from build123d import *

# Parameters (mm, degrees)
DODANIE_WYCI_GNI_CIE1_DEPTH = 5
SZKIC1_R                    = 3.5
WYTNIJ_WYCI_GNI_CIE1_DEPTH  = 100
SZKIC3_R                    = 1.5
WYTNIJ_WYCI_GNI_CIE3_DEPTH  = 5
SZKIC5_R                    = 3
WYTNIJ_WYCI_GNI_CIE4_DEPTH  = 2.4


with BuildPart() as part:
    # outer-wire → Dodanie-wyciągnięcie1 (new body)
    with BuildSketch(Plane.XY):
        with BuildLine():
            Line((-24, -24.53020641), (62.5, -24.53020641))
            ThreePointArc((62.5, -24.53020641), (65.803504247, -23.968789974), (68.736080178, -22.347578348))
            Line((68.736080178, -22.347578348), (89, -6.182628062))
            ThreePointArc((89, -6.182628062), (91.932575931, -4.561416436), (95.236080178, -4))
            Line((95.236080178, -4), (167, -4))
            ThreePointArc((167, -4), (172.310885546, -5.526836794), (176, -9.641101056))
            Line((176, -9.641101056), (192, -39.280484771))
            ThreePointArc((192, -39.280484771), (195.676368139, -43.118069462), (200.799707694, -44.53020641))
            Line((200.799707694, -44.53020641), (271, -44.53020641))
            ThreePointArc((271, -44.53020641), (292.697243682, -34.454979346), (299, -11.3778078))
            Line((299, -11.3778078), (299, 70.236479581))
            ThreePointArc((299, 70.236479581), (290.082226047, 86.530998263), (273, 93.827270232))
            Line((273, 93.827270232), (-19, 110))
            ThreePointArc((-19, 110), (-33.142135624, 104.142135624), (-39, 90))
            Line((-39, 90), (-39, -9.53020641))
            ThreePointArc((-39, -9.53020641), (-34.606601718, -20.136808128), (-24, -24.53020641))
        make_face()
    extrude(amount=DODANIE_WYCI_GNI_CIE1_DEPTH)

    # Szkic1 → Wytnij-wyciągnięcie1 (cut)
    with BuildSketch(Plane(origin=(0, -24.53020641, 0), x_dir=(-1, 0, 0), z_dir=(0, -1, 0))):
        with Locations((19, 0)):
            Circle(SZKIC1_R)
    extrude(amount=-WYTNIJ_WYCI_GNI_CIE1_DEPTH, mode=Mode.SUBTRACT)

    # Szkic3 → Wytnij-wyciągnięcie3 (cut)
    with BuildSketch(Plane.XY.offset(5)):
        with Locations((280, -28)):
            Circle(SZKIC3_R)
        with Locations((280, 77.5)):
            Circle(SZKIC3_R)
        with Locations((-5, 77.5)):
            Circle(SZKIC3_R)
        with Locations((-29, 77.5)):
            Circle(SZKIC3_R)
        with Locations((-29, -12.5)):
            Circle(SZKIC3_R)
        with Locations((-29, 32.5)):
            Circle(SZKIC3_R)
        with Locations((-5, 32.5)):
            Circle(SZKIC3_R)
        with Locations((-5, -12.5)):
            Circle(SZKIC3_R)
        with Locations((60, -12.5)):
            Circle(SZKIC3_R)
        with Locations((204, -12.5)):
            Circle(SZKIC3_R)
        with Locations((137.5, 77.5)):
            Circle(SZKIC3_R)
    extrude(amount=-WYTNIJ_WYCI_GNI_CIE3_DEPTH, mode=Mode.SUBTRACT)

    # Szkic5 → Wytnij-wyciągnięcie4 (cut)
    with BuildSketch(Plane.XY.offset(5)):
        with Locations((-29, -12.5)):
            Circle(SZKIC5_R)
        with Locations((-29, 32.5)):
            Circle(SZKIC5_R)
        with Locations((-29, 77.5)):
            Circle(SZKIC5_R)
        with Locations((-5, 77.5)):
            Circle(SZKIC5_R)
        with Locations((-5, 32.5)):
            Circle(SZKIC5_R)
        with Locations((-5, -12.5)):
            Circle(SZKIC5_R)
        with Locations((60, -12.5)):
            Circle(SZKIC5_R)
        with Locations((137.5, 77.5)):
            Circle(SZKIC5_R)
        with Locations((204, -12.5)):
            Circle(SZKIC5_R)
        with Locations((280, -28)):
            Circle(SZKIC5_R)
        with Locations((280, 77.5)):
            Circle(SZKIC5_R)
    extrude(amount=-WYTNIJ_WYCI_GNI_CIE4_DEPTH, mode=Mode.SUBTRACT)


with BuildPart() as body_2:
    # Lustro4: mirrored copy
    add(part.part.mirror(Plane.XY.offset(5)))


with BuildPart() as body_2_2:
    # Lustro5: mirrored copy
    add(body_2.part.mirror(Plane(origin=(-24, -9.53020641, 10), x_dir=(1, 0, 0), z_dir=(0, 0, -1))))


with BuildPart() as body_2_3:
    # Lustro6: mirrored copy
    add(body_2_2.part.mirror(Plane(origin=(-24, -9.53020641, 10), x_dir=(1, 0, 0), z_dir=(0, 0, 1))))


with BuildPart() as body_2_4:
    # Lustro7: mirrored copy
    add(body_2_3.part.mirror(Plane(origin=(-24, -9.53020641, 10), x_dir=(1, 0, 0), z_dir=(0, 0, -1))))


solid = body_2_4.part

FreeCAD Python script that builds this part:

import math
import FreeCAD as App
import Part
import Sketcher

V = App.Vector
Q = App.Units.Quantity

doc = App.newDocument("Part")
body = doc.addObject("PartDesign::Body", "Body")

# Sketch on XY plane
sketch1 = body.newObject("Sketcher::SketchObject", "Sketch")
sketch1.AttachmentSupport = (doc.getObject("XY_Plane"), [""])
sketch1.MapMode = "FlatFace"
sketch1.addGeometry(Part.LineSegment(V(-24, -24.530206, 0), V(62.5, -24.530206, 0)), False)
sketch1.addGeometry(Part.ArcOfCircle(Part.Circle(V(62.5, -14.530206, 0), V(0, 0, 1), 10), math.radians(-90), math.radians(-51.419908)), False)
sketch1.addGeometry(Part.LineSegment(V(68.73608, -22.347578, 0), V(89, -6.182628, 0)), False)
sketch1.addGeometry(Part.ArcOfCircle(Part.Circle(V(95.23608, -14, 0), V(0, 0, 1), 10), math.radians(90), math.radians(128.580092)), False)
sketch1.addGeometry(Part.LineSegment(V(95.23608, -4, 0), V(167, -4, 0)), False)
sketch1.addGeometry(Part.ArcOfCircle(Part.Circle(V(167, -14, 0), V(0, 0, 1), 10), math.radians(25.841933), math.radians(90)), False)
sketch1.addGeometry(Part.LineSegment(V(176, -9.641101, 0), V(192, -39.280485, 0)), False)
sketch1.addGeometry(Part.ArcOfCircle(Part.Circle(V(200.799708, -34.530206, 0), V(0, 0, 1), 10), math.radians(-151.638838), math.radians(-90)), False)
sketch1.addGeometry(Part.LineSegment(V(200.799708, -44.530206, 0), V(271, -44.530206, 0)), False)
sketch1.addGeometry(Part.ArcOfCircle(Part.Circle(V(271, -16.129825, 0), V(0, 0, 1), 28.400381), math.radians(-90), math.radians(9.632168)), False)
sketch1.addGeometry(Part.LineSegment(V(299, -11.377808, 0), V(299, 70.23648, 0)), False)
sketch1.addGeometry(Part.ArcOfCircle(Part.Circle(V(271, 65.5, 0), V(0, 0, 1), 28.397786), math.radians(9.601261), math.radians(85.961428)), False)
sketch1.addGeometry(Part.LineSegment(V(273, 93.82727, 0), V(-19, 110, 0)), False)
sketch1.addGeometry(Part.ArcOfCircle(Part.Circle(V(-19, 90, 0), V(0, 0, 1), 20), math.radians(90), math.radians(180)), False)
sketch1.addGeometry(Part.LineSegment(V(-39, 90, 0), V(-39, -9.530206, 0)), False)
sketch1.addGeometry(Part.ArcOfCircle(Part.Circle(V(-24, -9.530206, 0), V(0, 0, 1), 15), math.radians(180), math.radians(270)), False)
sketch1.addConstraint(Sketcher.Constraint("Tangent", 0, 2, 1, 1))
sketch1.addConstraint(Sketcher.Constraint("Tangent", 1, 2, 2, 1))
sketch1.addConstraint(Sketcher.Constraint("Tangent", 2, 2, 3, 2))
sketch1.addConstraint(Sketcher.Constraint("Tangent", 3, 1, 4, 1))
sketch1.addConstraint(Sketcher.Constraint("Tangent", 4, 2, 5, 2))
sketch1.addConstraint(Sketcher.Constraint("Coincident", 5, 1, 6, 1))
sketch1.addConstraint(Sketcher.Constraint("Tangent", 6, 2, 7, 1))
sketch1.addConstraint(Sketcher.Constraint("Tangent", 7, 2, 8, 1))
sketch1.addConstraint(Sketcher.Constraint("Tangent", 8, 2, 9, 1))
sketch1.addConstraint(Sketcher.Constraint("Coincident", 9, 2, 10, 1))
sketch1.addConstraint(Sketcher.Constraint("Coincident", 10, 2, 11, 1))
sketch1.addConstraint(Sketcher.Constraint("Coincident", 11, 2, 12, 1))
sketch1.addConstraint(Sketcher.Constraint("Coincident", 12, 2, 13, 1))
sketch1.addConstraint(Sketcher.Constraint("Tangent", 13, 2, 14, 1))
sketch1.addConstraint(Sketcher.Constraint("Tangent", 14, 2, 15, 1))
sketch1.addConstraint(Sketcher.Constraint("Tangent", 15, 2, 0, 1))
sketch1.addConstraint(Sketcher.Constraint("Horizontal", 0))
sketch1.addConstraint(Sketcher.Constraint("Horizontal", 4))
sketch1.addConstraint(Sketcher.Constraint("Horizontal", 8))
sketch1.addConstraint(Sketcher.Constraint("Vertical", 10))
sketch1.addConstraint(Sketcher.Constraint("Vertical", 14))
sketch1.addConstraint(Sketcher.Constraint("Equal", 1, 3))
sketch1.addConstraint(Sketcher.Constraint("Equal", 3, 5))
sketch1.addConstraint(Sketcher.Constraint("Equal", 5, 7))
sketch1.addConstraint(Sketcher.Constraint("Vertical", 9, 3, 11, 3))
sketch1.addConstraint(Sketcher.Constraint("Vertical", 13, 3, 12, 2))
sketch1.addConstraint(Sketcher.Constraint("Radius", 1, Q("10 mm")))
sketch1.addConstraint(Sketcher.Constraint("Radius", 13, Q("20 mm")))
sketch1.addConstraint(Sketcher.Constraint("Radius", 15, Q("15 mm")))
sketch1.addConstraint(Sketcher.Constraint("DistanceX", 0, 1, 0, 2, Q("86.5 mm")))
sketch1.addConstraint(Sketcher.Constraint("DistanceY", 3, 3, -1, 1, Q("14 mm")))
sketch1.addConstraint(Sketcher.Constraint("DistanceX", -1, 1, 5, 3, Q("167 mm")))
sketch1.addConstraint(Sketcher.Constraint("DistanceX", -1, 1, 9, 3, Q("271 mm")))
sketch1.addConstraint(Sketcher.Constraint("DistanceX", 13, 3, -1, 1, Q("19 mm")))
sketch1.addConstraint(Sketcher.Constraint("DistanceY", -1, 1, 13, 3, Q("90 mm")))
sketch1.addConstraint(Sketcher.Constraint("DistanceX", -1, 1, 2, 2, Q("89 mm")))
sketch1.addConstraint(Sketcher.Constraint("DistanceX", -1, 1, 5, 1, Q("176 mm")))
sketch1.addConstraint(Sketcher.Constraint("DistanceX", -1, 1, 6, 2, Q("192 mm")))
sketch1.addConstraint(Sketcher.Constraint("DistanceX", -1, 1, 9, 2, Q("299 mm")))
sketch1.addConstraint(Sketcher.Constraint("DistanceX", -1, 1, 11, 2, Q("273 mm")))
sketch1.addConstraint(Sketcher.Constraint("DistanceY", 7, 3, 1, 3, Q("20 mm")))
sketch1.addConstraint(Sketcher.Constraint("DistanceY", -1, 1, 11, 3, Q("65.5 mm")))
sketch1.addConstraint(Sketcher.Constraint("Radius", 9, Q("28.400381 mm")))
sketch1.addConstraint(Sketcher.Constraint("Radius", 11, Q("28.397786 mm")))
sketch1.addConstraint(Sketcher.Constraint("DistanceX", 4, 1, 4, 2, Q("71.76392 mm")))
pad1 = body.newObject("PartDesign::Pad", "Pad")
pad1.Profile = sketch1
pad1.Length = 5

# Sketch on XZ plane
sketch2 = body.newObject("Sketcher::SketchObject", "Sketch001")
sketch2.AttachmentSupport = (doc.getObject("XZ_Plane"), [""])
sketch2.MapMode = "FlatFace"
sketch2.AttachmentOffset = App.Placement(V(0, 0, 24.530206), App.Rotation())
sketch2.addGeometry(Part.Circle(V(-19, 0, 0), V(0, 0, 1), 3.5), False)
sketch2.addConstraint(Sketcher.Constraint("PointOnObject", 0, 3, -1))
sketch2.addConstraint(Sketcher.Constraint("Diameter", 0, Q("7 mm")))
sketch2.addConstraint(Sketcher.Constraint("DistanceX", 0, 3, -1, 1, Q("19 mm")))
pocket1 = body.newObject("PartDesign::Pocket", "Pocket")
pocket1.Profile = sketch2
pocket1.Length = 100

# Sketch on XY plane
sketch3 = body.newObject("Sketcher::SketchObject", "Sketch002")
sketch3.AttachmentSupport = (doc.getObject("XY_Plane"), [""])
sketch3.MapMode = "FlatFace"
sketch3.AttachmentOffset = App.Placement(V(0, 0, 5), App.Rotation())
sketch3.addGeometry(Part.Circle(V(280, -28, 0), V(0, 0, 1), 1.5), False)
sketch3.addGeometry(Part.Circle(V(280, 77.5, 0), V(0, 0, 1), 1.5), False)
sketch3.addGeometry(Part.Circle(V(-5, 77.5, 0), V(0, 0, 1), 1.5), False)
sketch3.addGeometry(Part.Circle(V(-29, 77.5, 0), V(0, 0, 1), 1.5), False)
sketch3.addGeometry(Part.Circle(V(-29, -12.5, 0), V(0, 0, 1), 1.5), False)
sketch3.addGeometry(Part.Circle(V(-29, 32.5, 0), V(0, 0, 1), 1.5), False)
sketch3.addGeometry(Part.Circle(V(-5, 32.5, 0), V(0, 0, 1), 1.5), False)
sketch3.addGeometry(Part.Circle(V(-5, -12.5, 0), V(0, 0, 1), 1.5), False)
sketch3.addGeometry(Part.Circle(V(60, -12.5, 0), V(0, 0, 1), 1.5), False)
sketch3.addGeometry(Part.Circle(V(204, -12.5, 0), V(0, 0, 1), 1.5), False)
sketch3.addGeometry(Part.Circle(V(137.5, 77.5, 0), V(0, 0, 1), 1.5), False)
sketch3.addConstraint(Sketcher.Constraint("Equal", 0, 1))
sketch3.addConstraint(Sketcher.Constraint("Equal", 1, 2))
sketch3.addConstraint(Sketcher.Constraint("Equal", 2, 3))
sketch3.addConstraint(Sketcher.Constraint("Equal", 3, 4))
sketch3.addConstraint(Sketcher.Constraint("Equal", 4, 5))
sketch3.addConstraint(Sketcher.Constraint("Equal", 5, 6))
sketch3.addConstraint(Sketcher.Constraint("Equal", 6, 7))
sketch3.addConstraint(Sketcher.Constraint("Equal", 7, 8))
sketch3.addConstraint(Sketcher.Constraint("Equal", 8, 9))
sketch3.addConstraint(Sketcher.Constraint("Equal", 9, 10))
sketch3.addConstraint(Sketcher.Constraint("Horizontal", 1, 3, 2, 3))
sketch3.addConstraint(Sketcher.Constraint("Horizontal", 2, 3, 3, 3))
sketch3.addConstraint(Sketcher.Constraint("Horizontal", 5, 3, 6, 3))
sketch3.addConstraint(Sketcher.Constraint("Horizontal", 4, 3, 7, 3))
sketch3.addConstraint(Sketcher.Constraint("Horizontal", 7, 3, 8, 3))
sketch3.addConstraint(Sketcher.Constraint("Horizontal", 8, 3, 9, 3))
sketch3.addConstraint(Sketcher.Constraint("Horizontal", 3, 3, 10, 3))
sketch3.addConstraint(Sketcher.Constraint("Vertical", 0, 3, 1, 3))
sketch3.addConstraint(Sketcher.Constraint("Vertical", 3, 3, 4, 3))
sketch3.addConstraint(Sketcher.Constraint("Vertical", 4, 3, 5, 3))
sketch3.addConstraint(Sketcher.Constraint("Vertical", 2, 3, 6, 3))
sketch3.addConstraint(Sketcher.Constraint("Vertical", 6, 3, 7, 3))
sketch3.addConstraint(Sketcher.Constraint("Diameter", 0, Q("3 mm")))
sketch3.addConstraint(Sketcher.Constraint("DistanceX", -1, 1, 0, 3, Q("280 mm")))
sketch3.addConstraint(Sketcher.Constraint("DistanceY", 0, 3, -1, 1, Q("28 mm")))
sketch3.addConstraint(Sketcher.Constraint("DistanceX", 2, 3, -1, 1, Q("5 mm")))
sketch3.addConstraint(Sketcher.Constraint("DistanceX", 3, 3, -1, 1, Q("29 mm")))
sketch3.addConstraint(Sketcher.Constraint("DistanceX", -1, 1, 8, 3, Q("60 mm")))
sketch3.addConstraint(Sketcher.Constraint("DistanceX", -1, 1, 9, 3, Q("204 mm")))
sketch3.addConstraint(Sketcher.Constraint("DistanceY", 4, 3, 3, 3, Q("90 mm")))
sketch3.addConstraint(Sketcher.Constraint("DistanceY", 5, 3, 3, 3, Q("45 mm")))
sketch3.addConstraint(Sketcher.Constraint("DistanceY", -1, 1, 1, 3, Q("77.5 mm")))
sketch3.addConstraint(Sketcher.Constraint("DistanceX", -1, 1, 10, 3, Q("137.5 mm")))
pocket2 = body.newObject("PartDesign::Pocket", "Pocket001")
pocket2.Profile = sketch3
pocket2.Length = 5

# Sketch on XY plane
sketch4 = body.newObject("Sketcher::SketchObject", "Sketch003")
sketch4.AttachmentSupport = (doc.getObject("XY_Plane"), [""])
sketch4.MapMode = "FlatFace"
sketch4.AttachmentOffset = App.Placement(V(0, 0, 5), App.Rotation())
sketch4.addGeometry(Part.Circle(V(-29, -12.5, 0), V(0, 0, 1), 3), False)
sketch4.addGeometry(Part.Circle(V(-29, 32.5, 0), V(0, 0, 1), 3), False)
sketch4.addGeometry(Part.Circle(V(-29, 77.5, 0), V(0, 0, 1), 3), False)
sketch4.addGeometry(Part.Circle(V(-5, 77.5, 0), V(0, 0, 1), 3), False)
sketch4.addGeometry(Part.Circle(V(-5, 32.5, 0), V(0, 0, 1), 3), False)
sketch4.addGeometry(Part.Circle(V(-5, -12.5, 0), V(0, 0, 1), 3), False)
sketch4.addGeometry(Part.Circle(V(60, -12.5, 0), V(0, 0, 1), 3), False)
sketch4.addGeometry(Part.Circle(V(137.5, 77.5, 0), V(0, 0, 1), 3), False)
sketch4.addGeometry(Part.Circle(V(204, -12.5, 0), V(0, 0, 1), 3), False)
sketch4.addGeometry(Part.Circle(V(280, -28, 0), V(0, 0, 1), 3), False)
sketch4.addGeometry(Part.Circle(V(280, 77.5, 0), V(0, 0, 1), 3), False)
sketch4.addConstraint(Sketcher.Constraint("Equal", 0, 1))
sketch4.addConstraint(Sketcher.Constraint("Equal", 1, 2))
sketch4.addConstraint(Sketcher.Constraint("Equal", 2, 3))
sketch4.addConstraint(Sketcher.Constraint("Equal", 3, 4))
sketch4.addConstraint(Sketcher.Constraint("Equal", 4, 5))
sketch4.addConstraint(Sketcher.Constraint("Equal", 5, 6))
sketch4.addConstraint(Sketcher.Constraint("Equal", 6, 7))
sketch4.addConstraint(Sketcher.Constraint("Equal", 7, 8))
sketch4.addConstraint(Sketcher.Constraint("Equal", 8, 9))
sketch4.addConstraint(Sketcher.Constraint("Equal", 9, 10))
sketch4.addConstraint(Sketcher.Constraint("Horizontal", 2, 3, 3, 3))
sketch4.addConstraint(Sketcher.Constraint("Horizontal", 1, 3, 4, 3))
sketch4.addConstraint(Sketcher.Constraint("Horizontal", 0, 3, 5, 3))
sketch4.addConstraint(Sketcher.Constraint("Horizontal", 5, 3, 6, 3))
sketch4.addConstraint(Sketcher.Constraint("Horizontal", 3, 3, 7, 3))
sketch4.addConstraint(Sketcher.Constraint("Horizontal", 6, 3, 8, 3))
sketch4.addConstraint(Sketcher.Constraint("Horizontal", 7, 3, 10, 3))
sketch4.addConstraint(Sketcher.Constraint("Vertical", 0, 3, 1, 3))
sketch4.addConstraint(Sketcher.Constraint("Vertical", 1, 3, 2, 3))
sketch4.addConstraint(Sketcher.Constraint("Vertical", 3, 3, 4, 3))
sketch4.addConstraint(Sketcher.Constraint("Vertical", 4, 3, 5, 3))
sketch4.addConstraint(Sketcher.Constraint("Vertical", 9, 3, 10, 3))
sketch4.addConstraint(Sketcher.Constraint("Diameter", 0, Q("6 mm")))
sketch4.addConstraint(Sketcher.Constraint("DistanceX", 0, 3, -1, 1, Q("29 mm")))
sketch4.addConstraint(Sketcher.Constraint("DistanceX", 3, 3, -1, 1, Q("5 mm")))
sketch4.addConstraint(Sketcher.Constraint("DistanceX", -1, 1, 6, 3, Q("60 mm")))
sketch4.addConstraint(Sketcher.Constraint("DistanceX", -1, 1, 8, 3, Q("204 mm")))
sketch4.addConstraint(Sketcher.Constraint("DistanceX", -1, 1, 9, 3, Q("280 mm")))
sketch4.addConstraint(Sketcher.Constraint("DistanceY", 9, 3, -1, 1, Q("28 mm")))
sketch4.addConstraint(Sketcher.Constraint("DistanceY", 0, 3, 1, 3, Q("45 mm")))
sketch4.addConstraint(Sketcher.Constraint("DistanceY", 1, 3, 2, 3, Q("45 mm")))
sketch4.addConstraint(Sketcher.Constraint("DistanceY", 0, 3, -1, 1, Q("12.5 mm")))
sketch4.addConstraint(Sketcher.Constraint("DistanceX", -1, 1, 7, 3, Q("137.5 mm")))
pocket3 = body.newObject("PartDesign::Pocket", "Pocket002")
pocket3.Profile = sketch4
pocket3.Length = 2.4
body2 = doc.addObject("PartDesign::Body", "Body001")
doc.recompute()

mirroring = doc.addObject("Part::Mirroring", "Mirroring")
mirroring.Source = body
mirroring.Base = V(0, 0, 5)
mirroring.Normal = V(0, 0, 1)
body2.BaseFeature = mirroring
doc.recompute()
body3 = doc.addObject("PartDesign::Body", "Body002")
doc.recompute()

mirroring2 = doc.addObject("Part::Mirroring", "Mirroring001")
mirroring2.Source = body2
mirroring2.Base = V(-24, -9.530206, 10)
mirroring2.Normal = V(0, 0, -1)
body3.BaseFeature = mirroring2
doc.recompute()
body4 = doc.addObject("PartDesign::Body", "Body003")
doc.recompute()

mirroring3 = doc.addObject("Part::Mirroring", "Mirroring002")
mirroring3.Source = body3
mirroring3.Base = V(-24, -9.530206, 10)
mirroring3.Normal = V(0, 0, 1)
body4.BaseFeature = mirroring3
doc.recompute()
body5 = doc.addObject("PartDesign::Body", "Body004")
doc.recompute()

mirroring4 = doc.addObject("Part::Mirroring", "Mirroring003")
mirroring4.Source = body4
mirroring4.Base = V(-24, -9.530206, 10)
mirroring4.Normal = V(0, 0, -1)
body5.BaseFeature = mirroring4
doc.recompute()
body.Visibility = False
body2.Visibility = False
body3.Visibility = False
body4.Visibility = False
mirroring.Visibility = False
mirroring2.Visibility = False
mirroring3.Visibility = False
mirroring4.Visibility = False

doc.recompute()
